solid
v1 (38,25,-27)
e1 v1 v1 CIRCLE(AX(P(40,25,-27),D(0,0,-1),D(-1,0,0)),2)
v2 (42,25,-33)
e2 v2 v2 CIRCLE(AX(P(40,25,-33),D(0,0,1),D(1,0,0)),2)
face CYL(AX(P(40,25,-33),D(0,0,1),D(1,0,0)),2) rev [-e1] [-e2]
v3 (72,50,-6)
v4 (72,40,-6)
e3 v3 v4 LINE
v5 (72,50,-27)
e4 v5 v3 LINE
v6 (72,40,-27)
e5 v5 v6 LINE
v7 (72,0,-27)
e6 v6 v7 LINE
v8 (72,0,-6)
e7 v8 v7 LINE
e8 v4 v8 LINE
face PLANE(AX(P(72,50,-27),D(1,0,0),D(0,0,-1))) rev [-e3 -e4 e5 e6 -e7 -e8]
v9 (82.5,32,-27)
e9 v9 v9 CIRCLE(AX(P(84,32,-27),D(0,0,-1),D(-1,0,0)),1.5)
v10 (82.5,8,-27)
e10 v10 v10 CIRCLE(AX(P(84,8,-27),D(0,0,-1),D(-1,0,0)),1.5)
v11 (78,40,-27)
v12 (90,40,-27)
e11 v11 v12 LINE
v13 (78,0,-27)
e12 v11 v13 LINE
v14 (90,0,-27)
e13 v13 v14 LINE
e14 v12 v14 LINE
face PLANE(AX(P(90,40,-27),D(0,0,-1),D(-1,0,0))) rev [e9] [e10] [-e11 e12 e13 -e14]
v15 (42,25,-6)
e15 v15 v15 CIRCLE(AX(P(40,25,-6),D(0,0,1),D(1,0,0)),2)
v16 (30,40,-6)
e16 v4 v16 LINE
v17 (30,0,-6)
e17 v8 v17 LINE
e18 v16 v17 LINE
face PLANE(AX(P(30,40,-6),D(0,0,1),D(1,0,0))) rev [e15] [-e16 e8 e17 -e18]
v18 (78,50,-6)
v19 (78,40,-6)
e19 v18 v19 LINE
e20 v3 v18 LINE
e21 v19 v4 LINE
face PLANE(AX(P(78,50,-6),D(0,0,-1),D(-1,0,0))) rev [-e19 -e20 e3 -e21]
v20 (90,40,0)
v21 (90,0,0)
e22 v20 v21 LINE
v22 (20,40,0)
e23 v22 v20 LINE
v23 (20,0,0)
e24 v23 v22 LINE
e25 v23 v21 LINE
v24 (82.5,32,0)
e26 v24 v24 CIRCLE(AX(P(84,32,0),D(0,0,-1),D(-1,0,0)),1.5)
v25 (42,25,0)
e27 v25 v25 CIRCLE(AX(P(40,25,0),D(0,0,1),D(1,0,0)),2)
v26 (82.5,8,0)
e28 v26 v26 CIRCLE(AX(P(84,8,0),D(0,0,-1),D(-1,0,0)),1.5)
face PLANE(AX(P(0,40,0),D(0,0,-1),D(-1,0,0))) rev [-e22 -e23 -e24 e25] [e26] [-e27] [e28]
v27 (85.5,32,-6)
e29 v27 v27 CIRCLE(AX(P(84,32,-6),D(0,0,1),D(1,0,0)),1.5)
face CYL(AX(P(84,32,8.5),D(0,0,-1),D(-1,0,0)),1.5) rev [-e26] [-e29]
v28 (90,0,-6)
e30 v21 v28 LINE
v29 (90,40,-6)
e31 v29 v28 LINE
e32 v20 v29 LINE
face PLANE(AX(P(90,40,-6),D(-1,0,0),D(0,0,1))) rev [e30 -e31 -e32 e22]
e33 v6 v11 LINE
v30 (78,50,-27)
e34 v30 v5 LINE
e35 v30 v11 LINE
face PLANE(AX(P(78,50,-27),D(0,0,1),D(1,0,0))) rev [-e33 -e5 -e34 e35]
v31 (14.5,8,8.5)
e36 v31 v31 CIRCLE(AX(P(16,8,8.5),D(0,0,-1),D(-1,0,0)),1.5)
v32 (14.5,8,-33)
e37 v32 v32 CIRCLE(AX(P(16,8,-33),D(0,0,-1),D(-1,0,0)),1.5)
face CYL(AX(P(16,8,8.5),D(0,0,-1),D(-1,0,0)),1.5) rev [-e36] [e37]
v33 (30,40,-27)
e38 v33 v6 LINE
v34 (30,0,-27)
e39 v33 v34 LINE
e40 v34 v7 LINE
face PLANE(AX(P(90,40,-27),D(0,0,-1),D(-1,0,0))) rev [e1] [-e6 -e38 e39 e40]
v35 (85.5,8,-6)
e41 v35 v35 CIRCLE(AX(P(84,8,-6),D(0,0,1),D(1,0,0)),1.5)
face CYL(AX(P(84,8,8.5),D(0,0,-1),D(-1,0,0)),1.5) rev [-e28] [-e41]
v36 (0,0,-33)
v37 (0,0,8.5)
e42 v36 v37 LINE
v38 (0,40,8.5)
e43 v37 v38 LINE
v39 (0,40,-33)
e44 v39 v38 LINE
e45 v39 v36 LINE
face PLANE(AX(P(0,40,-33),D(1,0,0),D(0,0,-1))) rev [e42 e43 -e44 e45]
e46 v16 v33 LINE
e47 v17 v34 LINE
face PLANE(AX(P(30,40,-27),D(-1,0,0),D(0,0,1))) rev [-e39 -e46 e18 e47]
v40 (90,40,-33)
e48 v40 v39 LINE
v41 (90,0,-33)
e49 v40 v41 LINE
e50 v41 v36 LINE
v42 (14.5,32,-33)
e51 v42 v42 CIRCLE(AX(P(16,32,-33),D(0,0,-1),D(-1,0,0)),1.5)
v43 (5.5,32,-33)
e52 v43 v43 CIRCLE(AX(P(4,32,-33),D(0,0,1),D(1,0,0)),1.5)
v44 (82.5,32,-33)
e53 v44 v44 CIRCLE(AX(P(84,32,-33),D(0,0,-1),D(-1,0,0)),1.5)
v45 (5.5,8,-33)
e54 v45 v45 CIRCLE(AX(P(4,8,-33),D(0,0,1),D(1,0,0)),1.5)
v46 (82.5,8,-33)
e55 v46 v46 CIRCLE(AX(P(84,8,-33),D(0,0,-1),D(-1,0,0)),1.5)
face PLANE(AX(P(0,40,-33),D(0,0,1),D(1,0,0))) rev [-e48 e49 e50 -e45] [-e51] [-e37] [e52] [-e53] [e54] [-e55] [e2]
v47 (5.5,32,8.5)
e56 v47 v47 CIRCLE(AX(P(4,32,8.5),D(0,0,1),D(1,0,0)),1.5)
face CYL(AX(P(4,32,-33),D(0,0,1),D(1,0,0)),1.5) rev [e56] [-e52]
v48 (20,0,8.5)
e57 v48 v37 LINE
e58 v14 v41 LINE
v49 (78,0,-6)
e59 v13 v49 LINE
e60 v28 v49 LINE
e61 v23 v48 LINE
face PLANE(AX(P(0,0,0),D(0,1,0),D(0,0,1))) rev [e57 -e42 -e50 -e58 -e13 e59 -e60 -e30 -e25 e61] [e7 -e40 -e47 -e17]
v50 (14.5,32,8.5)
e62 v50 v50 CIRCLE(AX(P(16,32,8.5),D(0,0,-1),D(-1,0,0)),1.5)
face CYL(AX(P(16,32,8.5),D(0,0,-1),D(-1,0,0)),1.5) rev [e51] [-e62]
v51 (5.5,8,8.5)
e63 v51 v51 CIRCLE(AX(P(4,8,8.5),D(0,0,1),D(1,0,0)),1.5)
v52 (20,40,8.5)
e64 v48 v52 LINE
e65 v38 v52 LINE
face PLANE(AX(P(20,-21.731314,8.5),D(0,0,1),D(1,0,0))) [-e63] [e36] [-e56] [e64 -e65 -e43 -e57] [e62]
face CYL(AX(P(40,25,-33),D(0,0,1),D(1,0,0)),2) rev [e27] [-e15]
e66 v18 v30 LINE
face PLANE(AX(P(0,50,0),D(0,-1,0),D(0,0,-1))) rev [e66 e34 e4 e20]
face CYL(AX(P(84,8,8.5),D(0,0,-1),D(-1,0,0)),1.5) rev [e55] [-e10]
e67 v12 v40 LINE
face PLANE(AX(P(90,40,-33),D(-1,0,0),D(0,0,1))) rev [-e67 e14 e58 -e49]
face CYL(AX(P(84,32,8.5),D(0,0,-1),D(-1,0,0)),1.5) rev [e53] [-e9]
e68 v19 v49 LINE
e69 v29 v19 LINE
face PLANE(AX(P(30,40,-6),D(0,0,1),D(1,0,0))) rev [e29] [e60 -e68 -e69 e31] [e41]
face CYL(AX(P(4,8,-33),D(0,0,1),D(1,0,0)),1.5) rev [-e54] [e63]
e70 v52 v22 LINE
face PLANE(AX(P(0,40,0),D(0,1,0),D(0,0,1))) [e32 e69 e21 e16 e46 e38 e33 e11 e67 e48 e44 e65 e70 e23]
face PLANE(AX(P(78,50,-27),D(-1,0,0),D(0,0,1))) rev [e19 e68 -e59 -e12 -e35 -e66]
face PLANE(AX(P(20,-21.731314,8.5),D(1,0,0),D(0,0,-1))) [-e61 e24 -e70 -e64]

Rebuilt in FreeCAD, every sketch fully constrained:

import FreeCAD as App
import Part
import Sketcher

doc = App.newDocument("Part")
body = doc.addObject("PartDesign::Body", "Body")

# Sketch on XZ plane
sketch1 = body.newObject("Sketcher::SketchObject", "Sketch")
sketch1.AttachmentSupport = (doc.getObject("XZ_Plane"), [""])
sketch1.MapMode = "FlatFace"
sketch1.addGeometry([
    Part.LineSegment(App.Vector(0, 0, 0), App.Vector(90, 0, 0)),  # 0
    Part.LineSegment(App.Vector(90, 0, 0), App.Vector(90, -6, 0)),  # 1
    Part.LineSegment(App.Vector(90, -6, 0), App.Vector(30, -6, 0)),  # 2
    Part.LineSegment(App.Vector(30, -6, 0), App.Vector(30, -27, 0)),  # 3
    Part.LineSegment(App.Vector(30, -27, 0), App.Vector(90, -27, 0)),  # 4
    Part.LineSegment(App.Vector(90, -27, 0), App.Vector(90, -33, 0)),  # 5
    Part.LineSegment(App.Vector(90, -33, 0), App.Vector(0, -33, 0)),  # 6
    Part.LineSegment(App.Vector(0, -33, 0), App.Vector(0, 0, 0)),  # 7
], False)
sketch1.addConstraint([
    Sketcher.Constraint("Coincident", 0, 2, 1, 1),
    Sketcher.Constraint("Coincident", 1, 2, 2, 1),
    Sketcher.Constraint("Coincident", 2, 2, 3, 1),
    Sketcher.Constraint("Coincident", 3, 2, 4, 1),
    Sketcher.Constraint("Coincident", 4, 2, 5, 1),
    Sketcher.Constraint("Coincident", 5, 2, 6, 1),
    Sketcher.Constraint("Coincident", 6, 2, 7, 1),
    Sketcher.Constraint("Coincident", 7, 2, 0, 1),
    Sketcher.Constraint("Horizontal", 0),
    Sketcher.Constraint("Vertical", 1),
    Sketcher.Constraint("Horizontal", 2),
    Sketcher.Constraint("Vertical", 3),
    Sketcher.Constraint("Horizontal", 4),
    Sketcher.Constraint("Vertical", 5),
    Sketcher.Constraint("Horizontal", 6),
    Sketcher.Constraint("Vertical", 7),
    Sketcher.Constraint("Coincident", 7, 2, -1, 1),
    Sketcher.Constraint("Vertical", 1, 2, 4, 2),
    Sketcher.Constraint("Equal", 1, 5),
    Sketcher.Constraint("DistanceX", 0, 1, 0, 2, 90.0),
    Sketcher.Constraint("DistanceX", 2, 2, 2, 1, 60.0),
    Sketcher.Constraint("DistanceY", 1, 2, 1, 1, 6.0),
    Sketcher.Constraint("DistanceY", 3, 2, 3, 1, 21.0),
])
pad1 = body.newObject("PartDesign::Pad", "Pad")
pad1.Profile = sketch1
pad1.Length = 40
pad1.Reversed = True

# Sketch on XZ plane
sketch2 = body.newObject("Sketcher::SketchObject", "Sketch001")
sketch2.AttachmentSupport = (doc.getObject("XZ_Plane"), [""])
sketch2.MapMode = "FlatFace"
sketch2.AttachmentOffset = App.Placement(App.Vector(0, 0, -40), App.Rotation())
sketch2.addGeometry([
    Part.LineSegment(App.Vector(0, 0, 0), App.Vector(0, 8, 0)),
    Part.LineSegment(App.Vector(0, 8, 0), App.Vector(20, 8, 0)),
    Part.LineSegment(App.Vector(20, 8, 0), App.Vector(20, 0, 0)),
    Part.LineSegment(App.Vector(20, 0, 0), App.Vector(0, 0, 0)),
], False)
sketch2.addConstraint([
    Sketcher.Constraint("Coincident", 0, 2, 1, 1),
    Sketcher.Constraint("Coincident", 1, 2, 2, 1),
    Sketcher.Constraint("Coincident", 2, 2, 3, 1),
    Sketcher.Constraint("Coincident", 3, 2, 0, 1),
    Sketcher.Constraint("Vertical", 0),
    Sketcher.Constraint("Horizontal", 1),
    Sketcher.Constraint("Vertical", 2),
    Sketcher.Constraint("Horizontal", 3),
    Sketcher.Constraint("Coincident", 3, 2, -1, 1),
    Sketcher.Constraint("DistanceX", 1, 1, 1, 2, 20.0),
    Sketcher.Constraint("DistanceY", 0, 1, 0, 2, 8.5),
])
pad2 = body.newObject("PartDesign::Pad", "Pad001")
pad2.Profile = sketch2
pad2.Length = 40

# Sketch on XY plane
sketch3 = body.newObject("Sketcher::SketchObject", "Sketch002")
sketch3.AttachmentSupport = (doc.getObject("XY_Plane"), [""])
sketch3.MapMode = "FlatFace"
sketch3.AttachmentOffset = App.Placement(App.Vector(0, 0, -33), App.Rotation())
sketch3.addGeometry([
    Part.Circle(App.Vector(84, 8, 0), App.Vector(0, 0, 1), 1.5),
    Part.Circle(App.Vector(84, 32, 0), App.Vector(0, 0, 1), 1.5),
    Part.Circle(App.Vector(16, 32, 0), App.Vector(0, 0, 1), 1.5),
    Part.Circle(App.Vector(16, 8, 0), App.Vector(0, 0, 1), 1.5),
], False)
sketch3.addConstraint([
    Sketcher.Constraint("Equal", 0, 1),
    Sketcher.Constraint("Equal", 1, 2),
    Sketcher.Constraint("Equal", 2, 3),
    Sketcher.Constraint("Horizontal", 1, 3, 2, 3),
    Sketcher.Constraint("Horizontal", 0, 3, 3, 3),
    Sketcher.Constraint("Vertical", 0, 3, 1, 3),
    Sketcher.Constraint("Vertical", 2, 3, 3, 3),
    Sketcher.Constraint("Diameter", 0, 3.0),
    Sketcher.Constraint("DistanceX", -1, 1, 0, 3, 84.0),
    Sketcher.Constraint("DistanceY", -1, 1, 0, 3, 8.0),
    Sketcher.Constraint("DistanceY", -1, 1, 1, 3, 32.0),
    Sketcher.Constraint("DistanceX", -1, 1, 2, 3, 16.0),
])
pocket1 = body.newObject("PartDesign::Pocket", "Pocket")
pocket1.Profile = sketch3
pocket1.Type = "ThroughAll"
pocket1.Reversed = True

# Sketch on XY plane
sketch4 = body.newObject("Sketcher::SketchObject", "Sketch003")
sketch4.AttachmentSupport = (doc.getObject("XY_Plane"), [""])
sketch4.MapMode = "FlatFace"
sketch4.AttachmentOffset = App.Placement(App.Vector(0, 0, 8.5), App.Rotation())
sketch4.addGeometry([
    Part.Circle(App.Vector(4, 32, 0), App.Vector(0, 0, 1), 1.5),
    Part.Circle(App.Vector(4, 8, 0), App.Vector(0, 0, 1), 1.5),
], False)
sketch4.addConstraint([
    Sketcher.Constraint("Equal", 0, 1),
    Sketcher.Constraint("Vertical", 0, 3, 1, 3),
    Sketcher.Constraint("Diameter", 0, 3.0),
    Sketcher.Constraint("DistanceX", -1, 1, 0, 3, 4.0),
    Sketcher.Constraint("DistanceY", -1, 1, 0, 3, 32.0),
    Sketcher.Constraint("DistanceY", -1, 1, 1, 3, 8.0),
])
pocket2 = body.newObject("PartDesign::Pocket", "Pocket001")
pocket2.Profile = sketch4
pocket2.Type = "ThroughAll"

# Sketch on XZ plane
sketch5 = body.newObject("Sketcher::SketchObject", "Sketch004")
sketch5.AttachmentSupport = (doc.getObject("XZ_Plane"), [""])
sketch5.MapMode = "FlatFace"
sketch5.AttachmentOffset = App.Placement(App.Vector(0, 0, -40), App.Rotation())
sketch5.addGeometry([
    Part.LineSegment(App.Vector(72, -27, 0), App.Vector(72, -6, 0)),
    Part.LineSegment(App.Vector(72, -6, 0), App.Vector(78, -6, 0)),
    Part.LineSegment(App.Vector(78, -6, 0), App.Vector(78, -27, 0)),
    Part.LineSegment(App.Vector(78, -27, 0), App.Vector(72, -27, 0)),
], False)
sketch5.addConstraint([
    Sketcher.Constraint("Coincident", 0, 2, 1, 1),
    Sketcher.Constraint("Coincident", 1, 2, 2, 1),
    Sketcher.Constraint("Coincident", 2, 2, 3, 1),
    Sketcher.Constraint("Coincident", 3, 2, 0, 1),
    Sketcher.Constraint("Vertical", 0),
    Sketcher.Constraint("Horizontal", 1),
    Sketcher.Constraint("Vertical", 2),
    Sketcher.Constraint("Horizontal", 3),
    Sketcher.Constraint("DistanceX", 1, 1, 1, 2, 6.0),
    Sketcher.Constraint("DistanceY", 0, 1, 0, 2, 21.0),
    Sketcher.Constraint("DistanceX", -1, 1, 0, 2, 72.0),
    Sketcher.Constraint("DistanceY", 0, 2, -1, 1, 6.0),
])
pad3 = body.newObject("PartDesign::Pad", "Pad002")
pad3.Profile = sketch5
pad3.Type = "TwoLengths"
pad3.Length = 10
pad3.Length2 = 40
pad3.Reversed = True

# Sketch on XY plane
sketch6 = body.newObject("Sketcher::SketchObject", "Sketch005")
sketch6.AttachmentSupport = (doc.getObject("XY_Plane"), [""])
sketch6.MapMode = "FlatFace"
sketch6.addGeometry(Part.Circle(App.Vector(40, 25, 0), App.Vector(0, 0, 1), 2), False)
sketch6.addConstraint([
    Sketcher.Constraint("Diameter", 0, 4.0),
    Sketcher.Constraint("DistanceX", -1, 1, 0, 3, 40.0),
    Sketcher.Constraint("DistanceY", -1, 1, 0, 3, 25.0),
])
pocket3 = body.newObject("PartDesign::Pocket", "Pocket002")
pocket3.Profile = sketch6
pocket3.Type = "ThroughAll"

doc.recompute()
